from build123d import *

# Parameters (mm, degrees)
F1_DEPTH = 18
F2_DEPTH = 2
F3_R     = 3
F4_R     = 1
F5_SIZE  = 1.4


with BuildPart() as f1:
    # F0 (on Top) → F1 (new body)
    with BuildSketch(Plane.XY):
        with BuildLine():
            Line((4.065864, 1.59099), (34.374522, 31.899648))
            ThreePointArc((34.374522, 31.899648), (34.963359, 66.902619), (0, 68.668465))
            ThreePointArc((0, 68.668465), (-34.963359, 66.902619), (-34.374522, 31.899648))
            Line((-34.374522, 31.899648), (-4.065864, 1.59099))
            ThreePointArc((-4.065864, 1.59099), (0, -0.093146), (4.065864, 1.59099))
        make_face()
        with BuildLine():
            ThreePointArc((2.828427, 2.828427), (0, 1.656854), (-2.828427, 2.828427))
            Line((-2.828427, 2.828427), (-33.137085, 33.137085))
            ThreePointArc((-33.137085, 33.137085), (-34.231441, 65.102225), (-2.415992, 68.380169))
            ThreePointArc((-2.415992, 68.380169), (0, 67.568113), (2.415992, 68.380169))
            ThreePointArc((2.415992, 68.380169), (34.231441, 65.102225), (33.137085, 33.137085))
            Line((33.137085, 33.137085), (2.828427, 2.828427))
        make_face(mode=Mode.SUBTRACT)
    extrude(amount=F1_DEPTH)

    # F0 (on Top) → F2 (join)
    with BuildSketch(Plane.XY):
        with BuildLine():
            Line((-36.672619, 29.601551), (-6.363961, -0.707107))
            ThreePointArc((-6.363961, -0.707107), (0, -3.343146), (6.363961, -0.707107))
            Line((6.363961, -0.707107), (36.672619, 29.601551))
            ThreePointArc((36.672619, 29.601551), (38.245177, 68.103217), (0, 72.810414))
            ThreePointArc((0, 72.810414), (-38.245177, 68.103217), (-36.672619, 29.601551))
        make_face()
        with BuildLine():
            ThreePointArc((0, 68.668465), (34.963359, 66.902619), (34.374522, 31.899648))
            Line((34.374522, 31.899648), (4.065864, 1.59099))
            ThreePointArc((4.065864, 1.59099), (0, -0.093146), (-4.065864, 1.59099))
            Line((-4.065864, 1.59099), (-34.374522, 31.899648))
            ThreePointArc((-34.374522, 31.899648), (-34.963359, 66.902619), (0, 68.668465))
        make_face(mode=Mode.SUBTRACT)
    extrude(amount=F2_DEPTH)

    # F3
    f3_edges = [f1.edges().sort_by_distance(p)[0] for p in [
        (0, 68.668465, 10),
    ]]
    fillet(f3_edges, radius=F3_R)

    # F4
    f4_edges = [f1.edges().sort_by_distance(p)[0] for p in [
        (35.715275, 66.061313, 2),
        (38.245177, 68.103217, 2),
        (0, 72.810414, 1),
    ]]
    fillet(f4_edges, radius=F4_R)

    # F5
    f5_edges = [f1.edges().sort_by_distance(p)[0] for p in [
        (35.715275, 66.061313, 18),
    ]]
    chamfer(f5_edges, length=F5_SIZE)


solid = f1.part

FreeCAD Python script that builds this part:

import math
import FreeCAD as App
import Part
import Sketcher

V = App.Vector
Q = App.Units.Quantity


def edges_at(feature, points):
    """Names of the edges that pass closest to the given points."""
    edges = feature.Shape.Edges
    near = lambda p: min(range(len(edges)), key=lambda i: edges[i].distToShape(Part.Vertex(*p))[0])
    return sorted({f"Edge{near(p) + 1}" for p in points})

doc = App.newDocument("Part")
body = doc.addObject("PartDesign::Body", "Body")

# Sketch on XY plane
sketch1 = doc.addObject("Sketcher::SketchObject", "Sketch")
body.addObject(sketch1)
sketch1.AttachmentSupport = (doc.XY_Plane, [""])
sketch1.MapMode = "FlatFace"
sketch1.addGeometry([
    Part.LineSegment(V(4.1, 1.6, 0), V(34.4, 31.9, 0)),  # 0
    Part.ArcOfCircle(Part.Circle(V(16.6, 49.7, 0), V(0, 0, 1), 25.2), math.radians(-45), math.radians(131)),  # 1
    Part.ArcOfCircle(Part.Circle(V(-16.6, 49.7, 0), V(0, 0, 1), 25.2), math.radians(49), math.radians(225)),  # 2
    Part.LineSegment(V(-34.4, 31.9, 0), V(-4.1, 1.6, 0)),  # 3
    Part.ArcOfCircle(Part.Circle(V(0, 5.7, 0), V(0, 0, 1), 5.8), math.radians(-135), math.radians(-45)),  # 4
    Part.LineSegment(V(33.1, 33.1, 0), V(2.8, 2.8, 0)),  # 5
    Part.ArcOfCircle(Part.Circle(V(0, 5.7, 0), V(0, 0, 1), 4), math.radians(-135), math.radians(-45)),  # 6
    Part.LineSegment(V(-2.8, 2.8, 0), V(-33.1, 33.1, 0)),  # 7
    Part.ArcOfCircle(Part.Circle(V(-16.6, 49.7, 0), V(0, 0, 1), 23.4), math.radians(53), math.radians(225)),  # 8
    Part.ArcOfCircle(Part.Circle(V(0, 71.6, 0), V(0, 0, 1), 4), math.radians(-127), math.radians(-53)),  # 9
    Part.ArcOfCircle(Part.Circle(V(16.6, 49.7, 0), V(0, 0, 1), 23.4), math.radians(-45), math.radians(127)),  # 10
], False)
sketch1.addConstraint([
    Sketcher.Constraint("Tangent", 0, 2, 1, 1),
    Sketcher.Constraint("Coincident", 1, 2, 2, 1),
    Sketcher.Constraint("Tangent", 2, 2, 3, 1),
    Sketcher.Constraint("Tangent", 3, 2, 4, 1),
    Sketcher.Constraint("Tangent", 4, 2, 0, 1),
    Sketcher.Constraint("Tangent", 5, 2, 6, 2),
    Sketcher.Constraint("Tangent", 6, 1, 7, 1),
    Sketcher.Constraint("Tangent", 7, 2, 8, 2),
    Sketcher.Constraint("Tangent", 8, 1, 9, 1),
    Sketcher.Constraint("Tangent", 9, 2, 10, 2),
    Sketcher.Constraint("Tangent", 10, 1, 5, 1),
    Sketcher.Constraint("Coincident", 6, 3, 4, 3),
    Sketcher.Constraint("Coincident", 8, 3, 2, 3),
    Sketcher.Constraint("Coincident", 10, 3, 1, 3),
    Sketcher.Constraint("Equal", 1, 2),
    Sketcher.Constraint("Equal", 8, 10),
    Sketcher.Constraint("Symmetric", 1, 3, 2, 3, -2),
    Sketcher.Constraint("PointOnObject", 4, 3, -2),
    Sketcher.Constraint("Perpendicular", 0, 3),
    Sketcher.Constraint("Perpendicular", 3, 5),
    Sketcher.Constraint("Radius", 6, Q("3.999999 mm")),
    Sketcher.Constraint("Radius", 4, Q("5.75 mm")),
    Sketcher.Constraint("Radius", 1, Q("25.181458 mm")),
    Sketcher.Constraint("Radius", 9, Q("4.000003 mm")),
    Sketcher.Constraint("DistanceY", -1, 1, 3, 2, Q("1.59099 mm")),
    Sketcher.Constraint("DistanceY", -1, 1, 8, 1, Q("68.380169 mm")),
])
pad1 = doc.addObject("PartDesign::Pad", "Pad")
body.addObject(pad1)
pad1.Profile = sketch1
pad1.Length = 18

# Sketch on XY plane
sketch2 = doc.addObject("Sketcher::SketchObject", "Sketch001")
body.addObject(sketch2)
sketch2.AttachmentSupport = (doc.XY_Plane, [""])
sketch2.MapMode = "FlatFace"
sketch2.addGeometry([
    Part.LineSegment(V(-37, 30, 0), V(-6, -1, 0)),  # 0
    Part.ArcOfCircle(Part.Circle(V(0, 6, 0), V(0, 0, 1), 9), math.radians(-135), math.radians(-45)),  # 1
    Part.LineSegment(V(6, -1, 0), V(37, 30, 0)),  # 2
    Part.ArcOfCircle(Part.Circle(V(17, 50, 0), V(0, 0, 1), 28), math.radians(-45), math.radians(126)),  # 3
    Part.ArcOfCircle(Part.Circle(V(-17, 50, 0), V(0, 0, 1), 28), math.radians(54), math.radians(225)),  # 4
    Part.ArcOfCircle(Part.Circle(V(-17, 50, 0), V(0, 0, 1), 25), math.radians(49), math.radians(225)),  # 5
    Part.ArcOfCircle(Part.Circle(V(17, 50, 0), V(0, 0, 1), 25), math.radians(-45), math.radians(131)),  # 6
    Part.LineSegment(V(34, 32, 0), V(4, 2, 0)),  # 7
    Part.ArcOfCircle(Part.Circle(V(0, 6, 0), V(0, 0, 1), 6), math.radians(-135), math.radians(-45)),  # 8
    Part.LineSegment(V(-4, 2, 0), V(-34, 32, 0)),  # 9
], False)
sketch2.addConstraint([
    Sketcher.Constraint("Tangent", 0, 2, 1, 1),
    Sketcher.Constraint("Tangent", 1, 2, 2, 1),
    Sketcher.Constraint("Tangent", 2, 2, 3, 1),
    Sketcher.Constraint("Coincident", 3, 2, 4, 1),
    Sketcher.Constraint("Tangent", 4, 2, 0, 1),
    Sketcher.Constraint("Coincident", 5, 1, 6, 2),
    Sketcher.Constraint("Tangent", 6, 1, 7, 1),
    Sketcher.Constraint("Tangent", 7, 2, 8, 2),
    Sketcher.Constraint("Tangent", 8, 1, 9, 1),
    Sketcher.Constraint("Tangent", 9, 2, 5, 2),
    Sketcher.Constraint("Coincident", 5, 3, 4, 3),
    Sketcher.Constraint("Coincident", 6, 3, 3, 3),
    Sketcher.Constraint("Coincident", 8, 3, 1, 3),
    Sketcher.Constraint("Equal", 3, 4),
    Sketcher.Constraint("Equal", 5, 6),
    Sketcher.Constraint("Symmetric", 3, 3, 4, 3, -2),
    Sketcher.Constraint("PointOnObject", 1, 3, -2),
    Sketcher.Constraint("Perpendicular", 0, 2),
    Sketcher.Constraint("Parallel", 2, 7),
    Sketcher.Constraint("Radius", 1, Q("9 mm")),
    Sketcher.Constraint("Radius", 8, Q("5.75 mm")),
    Sketcher.Constraint("Radius", 3, Q("28.431457 mm")),
    Sketcher.Constraint("DistanceX", -1, 1, 2, 2, Q("36.672619 mm")),
    Sketcher.Constraint("DistanceY", -1, 1, 2, 2, Q("29.601551 mm")),
])
pad2 = doc.addObject("PartDesign::Pad", "Pad001")
body.addObject(pad2)
pad2.Profile = sketch2
pad2.Length = 2
doc.recompute()

fillet = doc.addObject("PartDesign::Fillet", "Fillet")
body.addObject(fillet)
fillet.Base = (pad2, edges_at(pad2, [(0, 68.668, 10)]))
fillet.Radius = 3
doc.recompute()

fillet2 = doc.addObject("PartDesign::Fillet", "Fillet001")
body.addObject(fillet2)
fillet2.Base = (fillet, edges_at(fillet, [(35.715, 66.061, 2), (38.245, 68.103, 2), (0, 72.81, 1)]))
fillet2.Radius = 1
doc.recompute()

chamfer = doc.addObject("PartDesign::Chamfer", "Chamfer")
body.addObject(chamfer)
chamfer.Base = (fillet2, edges_at(fillet2, [(35.715, 66.061, 18)]))
chamfer.Size = 1.4

doc.recompute()
